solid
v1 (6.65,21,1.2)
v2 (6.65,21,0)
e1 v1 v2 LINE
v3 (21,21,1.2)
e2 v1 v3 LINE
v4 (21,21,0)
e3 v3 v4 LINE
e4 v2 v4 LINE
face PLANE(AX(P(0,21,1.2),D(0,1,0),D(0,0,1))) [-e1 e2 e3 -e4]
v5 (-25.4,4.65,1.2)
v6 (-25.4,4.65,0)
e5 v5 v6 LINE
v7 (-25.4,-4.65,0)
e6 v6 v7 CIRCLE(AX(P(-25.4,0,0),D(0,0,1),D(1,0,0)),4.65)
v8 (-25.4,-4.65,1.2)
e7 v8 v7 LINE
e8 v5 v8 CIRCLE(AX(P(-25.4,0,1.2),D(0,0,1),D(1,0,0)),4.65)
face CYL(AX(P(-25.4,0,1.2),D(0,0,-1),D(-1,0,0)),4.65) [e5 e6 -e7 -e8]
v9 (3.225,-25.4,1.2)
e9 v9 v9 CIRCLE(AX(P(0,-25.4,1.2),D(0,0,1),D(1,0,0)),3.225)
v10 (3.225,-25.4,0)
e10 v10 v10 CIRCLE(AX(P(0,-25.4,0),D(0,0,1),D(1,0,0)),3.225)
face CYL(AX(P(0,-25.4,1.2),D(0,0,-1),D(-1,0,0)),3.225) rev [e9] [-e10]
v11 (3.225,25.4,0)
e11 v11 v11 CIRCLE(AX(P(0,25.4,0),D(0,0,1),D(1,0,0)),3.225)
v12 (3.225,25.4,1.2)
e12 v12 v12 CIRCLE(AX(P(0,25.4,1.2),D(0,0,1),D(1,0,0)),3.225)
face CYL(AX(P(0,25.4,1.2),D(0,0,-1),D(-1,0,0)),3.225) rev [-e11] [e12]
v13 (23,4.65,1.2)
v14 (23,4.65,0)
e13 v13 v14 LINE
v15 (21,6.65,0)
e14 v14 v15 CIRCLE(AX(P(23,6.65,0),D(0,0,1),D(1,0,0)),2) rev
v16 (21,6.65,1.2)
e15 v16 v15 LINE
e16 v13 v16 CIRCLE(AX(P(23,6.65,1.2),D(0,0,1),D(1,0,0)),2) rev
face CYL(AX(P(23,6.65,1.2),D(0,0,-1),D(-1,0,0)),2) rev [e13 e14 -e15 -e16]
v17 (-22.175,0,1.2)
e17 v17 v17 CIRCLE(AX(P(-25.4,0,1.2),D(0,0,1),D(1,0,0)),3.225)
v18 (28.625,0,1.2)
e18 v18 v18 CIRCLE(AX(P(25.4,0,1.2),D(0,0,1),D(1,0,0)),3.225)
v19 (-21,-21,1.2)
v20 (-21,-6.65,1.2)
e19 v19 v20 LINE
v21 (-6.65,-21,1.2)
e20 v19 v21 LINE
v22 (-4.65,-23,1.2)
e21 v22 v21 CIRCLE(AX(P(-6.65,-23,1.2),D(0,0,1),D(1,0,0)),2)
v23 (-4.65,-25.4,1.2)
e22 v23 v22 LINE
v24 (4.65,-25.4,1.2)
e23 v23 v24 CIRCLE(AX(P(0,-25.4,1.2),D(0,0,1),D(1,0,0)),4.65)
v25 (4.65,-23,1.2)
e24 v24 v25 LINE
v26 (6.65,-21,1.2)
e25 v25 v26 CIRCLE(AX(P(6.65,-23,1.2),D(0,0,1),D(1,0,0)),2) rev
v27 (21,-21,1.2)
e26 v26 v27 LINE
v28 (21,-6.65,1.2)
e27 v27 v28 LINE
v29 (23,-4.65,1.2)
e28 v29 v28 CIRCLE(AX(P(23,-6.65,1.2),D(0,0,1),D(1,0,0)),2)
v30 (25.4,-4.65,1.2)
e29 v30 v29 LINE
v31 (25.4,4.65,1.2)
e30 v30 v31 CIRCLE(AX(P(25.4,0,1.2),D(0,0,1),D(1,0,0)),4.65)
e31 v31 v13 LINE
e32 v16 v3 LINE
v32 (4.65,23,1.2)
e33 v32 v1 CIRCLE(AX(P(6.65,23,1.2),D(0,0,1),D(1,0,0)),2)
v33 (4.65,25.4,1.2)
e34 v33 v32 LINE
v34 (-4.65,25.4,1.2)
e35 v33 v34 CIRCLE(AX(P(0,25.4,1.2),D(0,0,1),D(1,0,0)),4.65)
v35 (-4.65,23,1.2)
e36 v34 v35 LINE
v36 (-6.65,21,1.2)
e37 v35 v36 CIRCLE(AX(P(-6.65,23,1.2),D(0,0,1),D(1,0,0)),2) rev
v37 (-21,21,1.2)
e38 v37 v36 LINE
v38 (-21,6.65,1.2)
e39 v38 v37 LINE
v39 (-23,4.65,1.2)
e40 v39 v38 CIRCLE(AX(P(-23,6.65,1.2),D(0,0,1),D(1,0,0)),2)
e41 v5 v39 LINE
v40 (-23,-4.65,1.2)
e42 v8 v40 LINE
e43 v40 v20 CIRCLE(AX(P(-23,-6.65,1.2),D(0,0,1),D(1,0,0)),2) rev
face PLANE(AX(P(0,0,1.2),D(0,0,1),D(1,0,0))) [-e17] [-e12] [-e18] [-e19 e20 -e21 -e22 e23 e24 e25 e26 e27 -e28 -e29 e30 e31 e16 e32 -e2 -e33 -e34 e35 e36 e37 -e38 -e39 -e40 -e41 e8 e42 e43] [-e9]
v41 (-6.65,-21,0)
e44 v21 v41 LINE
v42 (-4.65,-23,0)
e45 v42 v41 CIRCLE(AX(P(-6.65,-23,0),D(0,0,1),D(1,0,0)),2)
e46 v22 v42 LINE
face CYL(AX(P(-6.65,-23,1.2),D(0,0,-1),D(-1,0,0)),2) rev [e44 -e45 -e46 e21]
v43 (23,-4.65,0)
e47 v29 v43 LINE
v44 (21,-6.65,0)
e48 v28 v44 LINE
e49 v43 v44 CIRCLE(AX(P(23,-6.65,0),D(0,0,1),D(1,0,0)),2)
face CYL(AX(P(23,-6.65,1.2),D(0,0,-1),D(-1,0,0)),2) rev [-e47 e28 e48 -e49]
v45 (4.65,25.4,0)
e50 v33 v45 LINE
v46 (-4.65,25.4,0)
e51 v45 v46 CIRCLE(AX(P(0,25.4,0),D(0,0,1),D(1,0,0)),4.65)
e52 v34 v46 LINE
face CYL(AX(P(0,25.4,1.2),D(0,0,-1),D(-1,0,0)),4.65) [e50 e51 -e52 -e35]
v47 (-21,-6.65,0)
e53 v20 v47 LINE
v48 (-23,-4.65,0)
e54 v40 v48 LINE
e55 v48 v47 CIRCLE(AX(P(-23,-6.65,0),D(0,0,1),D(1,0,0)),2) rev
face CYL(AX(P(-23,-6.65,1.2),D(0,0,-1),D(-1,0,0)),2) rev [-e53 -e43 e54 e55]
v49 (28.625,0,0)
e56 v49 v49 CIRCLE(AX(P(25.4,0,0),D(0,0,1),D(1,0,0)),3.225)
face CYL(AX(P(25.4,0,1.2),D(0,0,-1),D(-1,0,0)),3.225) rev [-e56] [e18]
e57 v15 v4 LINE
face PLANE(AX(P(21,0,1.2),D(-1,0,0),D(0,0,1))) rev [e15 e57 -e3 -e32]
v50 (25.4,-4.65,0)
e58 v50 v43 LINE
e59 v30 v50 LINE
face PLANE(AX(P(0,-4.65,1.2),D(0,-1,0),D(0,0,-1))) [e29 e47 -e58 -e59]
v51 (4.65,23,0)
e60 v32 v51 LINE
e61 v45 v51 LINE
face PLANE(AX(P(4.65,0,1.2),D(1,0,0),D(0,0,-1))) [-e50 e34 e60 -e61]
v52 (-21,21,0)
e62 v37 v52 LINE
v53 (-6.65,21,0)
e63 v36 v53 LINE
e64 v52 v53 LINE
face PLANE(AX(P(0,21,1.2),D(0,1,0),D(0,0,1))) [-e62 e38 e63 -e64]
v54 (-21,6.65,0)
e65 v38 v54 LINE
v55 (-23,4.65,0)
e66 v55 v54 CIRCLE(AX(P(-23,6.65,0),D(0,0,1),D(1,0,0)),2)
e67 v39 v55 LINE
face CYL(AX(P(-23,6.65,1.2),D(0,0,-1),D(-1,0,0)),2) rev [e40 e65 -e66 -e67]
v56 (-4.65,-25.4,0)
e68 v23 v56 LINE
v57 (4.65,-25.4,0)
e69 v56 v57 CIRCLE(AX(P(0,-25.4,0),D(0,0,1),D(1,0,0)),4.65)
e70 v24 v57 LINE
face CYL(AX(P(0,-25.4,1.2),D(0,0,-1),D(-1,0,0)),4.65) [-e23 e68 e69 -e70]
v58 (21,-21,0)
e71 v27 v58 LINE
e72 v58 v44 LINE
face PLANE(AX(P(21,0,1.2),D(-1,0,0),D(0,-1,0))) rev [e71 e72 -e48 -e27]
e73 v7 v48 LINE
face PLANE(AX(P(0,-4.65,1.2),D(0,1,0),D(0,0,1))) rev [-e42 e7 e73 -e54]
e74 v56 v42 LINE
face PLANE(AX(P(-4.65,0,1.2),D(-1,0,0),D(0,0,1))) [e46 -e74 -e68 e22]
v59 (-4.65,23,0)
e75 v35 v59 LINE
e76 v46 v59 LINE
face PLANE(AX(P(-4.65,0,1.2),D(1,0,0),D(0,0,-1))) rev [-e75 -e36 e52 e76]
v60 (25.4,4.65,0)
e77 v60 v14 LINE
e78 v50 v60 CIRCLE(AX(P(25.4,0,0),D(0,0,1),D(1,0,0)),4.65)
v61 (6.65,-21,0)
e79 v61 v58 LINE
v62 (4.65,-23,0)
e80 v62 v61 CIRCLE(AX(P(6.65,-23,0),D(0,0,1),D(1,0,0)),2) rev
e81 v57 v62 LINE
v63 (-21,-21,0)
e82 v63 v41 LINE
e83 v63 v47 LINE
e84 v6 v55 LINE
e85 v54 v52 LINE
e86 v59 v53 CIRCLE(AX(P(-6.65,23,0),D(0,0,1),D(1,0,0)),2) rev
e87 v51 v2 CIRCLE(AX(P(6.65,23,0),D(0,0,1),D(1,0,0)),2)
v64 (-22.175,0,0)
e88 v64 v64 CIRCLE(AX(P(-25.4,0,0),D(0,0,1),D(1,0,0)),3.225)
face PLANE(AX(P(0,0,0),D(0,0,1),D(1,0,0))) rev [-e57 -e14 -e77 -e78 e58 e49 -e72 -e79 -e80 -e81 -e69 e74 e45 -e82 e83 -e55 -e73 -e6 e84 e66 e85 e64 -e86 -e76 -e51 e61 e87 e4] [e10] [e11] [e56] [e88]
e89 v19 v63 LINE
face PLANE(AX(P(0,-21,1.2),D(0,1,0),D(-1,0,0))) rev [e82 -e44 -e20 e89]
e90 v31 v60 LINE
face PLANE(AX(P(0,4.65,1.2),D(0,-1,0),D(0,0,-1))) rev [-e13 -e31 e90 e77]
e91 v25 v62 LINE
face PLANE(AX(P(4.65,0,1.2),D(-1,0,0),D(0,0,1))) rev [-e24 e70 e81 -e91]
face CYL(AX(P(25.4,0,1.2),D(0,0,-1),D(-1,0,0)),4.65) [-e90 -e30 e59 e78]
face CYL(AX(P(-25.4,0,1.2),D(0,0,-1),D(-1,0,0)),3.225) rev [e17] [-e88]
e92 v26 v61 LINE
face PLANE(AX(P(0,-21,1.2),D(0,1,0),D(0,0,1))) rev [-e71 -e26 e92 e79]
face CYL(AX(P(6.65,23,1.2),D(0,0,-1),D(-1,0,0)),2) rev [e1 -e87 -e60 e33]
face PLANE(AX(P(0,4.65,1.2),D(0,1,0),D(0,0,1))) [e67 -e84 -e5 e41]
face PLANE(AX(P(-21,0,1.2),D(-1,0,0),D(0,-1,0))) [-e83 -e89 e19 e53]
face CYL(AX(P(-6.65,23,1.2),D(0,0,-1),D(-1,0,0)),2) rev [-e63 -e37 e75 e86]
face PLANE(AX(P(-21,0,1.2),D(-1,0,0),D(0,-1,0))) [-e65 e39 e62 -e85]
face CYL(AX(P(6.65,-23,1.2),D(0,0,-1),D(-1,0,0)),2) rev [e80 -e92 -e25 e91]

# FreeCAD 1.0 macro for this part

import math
import FreeCAD as App
import Part
import Sketcher
from FreeCAD import Vector
Q = App.Units.Quantity

doc = App.newDocument("Part")
body = doc.addObject("PartDesign::Body", "Body")

# Sketch on XY plane
sketch1 = body.newObject("Sketcher::SketchObject", "Sketch")
sketch1.AttachmentSupport = (doc.getObject("XY_Plane"), [""])
sketch1.MapMode = "FlatFace"
sketch1.addGeometry([
    Part.ArcOfCircle(Part.Circle(Vector(0, 25.4, 0), Vector(0, 0, 1), 4.7), math.radians(0), math.radians(180)),  # 0
    Part.LineSegment(Vector(-4.7, 25.4, 0), Vector(-4.7, 23, 0)),  # 1
    Part.ArcOfCircle(Part.Circle(Vector(-6.7, 23, 0), Vector(0, 0, 1), 2), math.radians(-90), math.radians(0)),  # 2
    Part.LineSegment(Vector(-6.7, 21, 0), Vector(-21, 21, 0)),  # 3
    Part.LineSegment(Vector(-21, 21, 0), Vector(-21, 6.7, 0)),  # 4
    Part.ArcOfCircle(Part.Circle(Vector(-23, 6.7, 0), Vector(0, 0, 1), 2), math.radians(-90), math.radians(0)),  # 5
    Part.LineSegment(Vector(-23, 4.7, 0), Vector(-25.4, 4.7, 0)),  # 6
    Part.ArcOfCircle(Part.Circle(Vector(-25.4, 0, 0), Vector(0, 0, 1), 4.7), math.radians(90), math.radians(270)),  # 7
    Part.LineSegment(Vector(-25.4, -4.7, 0), Vector(-23, -4.7, 0)),  # 8
    Part.ArcOfCircle(Part.Circle(Vector(-23, -6.7, 0), Vector(0, 0, 1), 2), math.radians(0), math.radians(90)),  # 9
    Part.LineSegment(Vector(-21, -6.7, 0), Vector(-21, -21, 0)),  # 10
    Part.LineSegment(Vector(-21, -21, 0), Vector(-6.7, -21, 0)),  # 11
    Part.ArcOfCircle(Part.Circle(Vector(-6.7, -23, 0), Vector(0, 0, 1), 2), math.radians(0), math.radians(90)),  # 12
    Part.LineSegment(Vector(-4.7, -23, 0), Vector(-4.7, -25.4, 0)),  # 13
    Part.ArcOfCircle(Part.Circle(Vector(0, -25.4, 0), Vector(0, 0, 1), 4.7), math.radians(180), math.radians(360)),  # 14
    Part.LineSegment(Vector(4.7, -25.4, 0), Vector(4.7, -23, 0)),  # 15
    Part.ArcOfCircle(Part.Circle(Vector(6.7, -23, 0), Vector(0, 0, 1), 2), math.radians(90), math.radians(180)),  # 16
    Part.LineSegment(Vector(6.7, -21, 0), Vector(21, -21, 0)),  # 17
    Part.LineSegment(Vector(21, -21, 0), Vector(21, -6.7, 0)),  # 18
    Part.ArcOfCircle(Part.Circle(Vector(23, -6.7, 0), Vector(0, 0, 1), 2), math.radians(90), math.radians(180)),  # 19
    Part.LineSegment(Vector(23, -4.7, 0), Vector(25.4, -4.7, 0)),  # 20
    Part.ArcOfCircle(Part.Circle(Vector(25.4, 0, 0), Vector(0, 0, 1), 4.7), math.radians(-90), math.radians(90)),  # 21
    Part.LineSegment(Vector(25.4, 4.7, 0), Vector(23, 4.7, 0)),  # 22
    Part.ArcOfCircle(Part.Circle(Vector(23, 6.7, 0), Vector(0, 0, 1), 2), math.radians(-180), math.radians(-90)),  # 23
    Part.LineSegment(Vector(21, 6.7, 0), Vector(21, 21, 0)),  # 24
    Part.LineSegment(Vector(21, 21, 0), Vector(6.7, 21, 0)),  # 25
    Part.ArcOfCircle(Part.Circle(Vector(6.7, 23, 0), Vector(0, 0, 1), 2), math.radians(-180), math.radians(-90)),  # 26
    Part.LineSegment(Vector(4.7, 23, 0), Vector(4.7, 25.4, 0)),  # 27
    Part.Circle(Vector(0, -25.4, 0), Vector(0, 0, 1), 3.2),  # 28
    Part.Circle(Vector(-25.4, 0, 0), Vector(0, 0, 1), 3.2),  # 29
    Part.Circle(Vector(25.4, 0, 0), Vector(0, 0, 1), 3.2),  # 30
    Part.Circle(Vector(0, 25.4, 0), Vector(0, 0, 1), 3.2),  # 31
], False)
sketch1.addConstraint([
    Sketcher.Constraint("Tangent", 0, 2, 1, 1),
    Sketcher.Constraint("Tangent", 1, 2, 2, 2),
    Sketcher.Constraint("Tangent", 2, 1, 3, 1),
    Sketcher.Constraint("Coincident", 3, 2, 4, 1),
    Sketcher.Constraint("Tangent", 4, 2, 5, 2),
    Sketcher.Constraint("Tangent", 5, 1, 6, 1),
    Sketcher.Constraint("Tangent", 6, 2, 7, 1),
    Sketcher.Constraint("Tangent", 7, 2, 8, 1),
    Sketcher.Constraint("Tangent", 8, 2, 9, 2),
    Sketcher.Constraint("Tangent", 9, 1, 10, 1),
    Sketcher.Constraint("Coincident", 10, 2, 11, 1),
    Sketcher.Constraint("Tangent", 11, 2, 12, 2),
    Sketcher.Constraint("Tangent", 12, 1, 13, 1),
    Sketcher.Constraint("Tangent", 13, 2, 14, 1),
    Sketcher.Constraint("Tangent", 14, 2, 15, 1),
    Sketcher.Constraint("Tangent", 15, 2, 16, 2),
    Sketcher.Constraint("Tangent", 16, 1, 17, 1),
    Sketcher.Constraint("Coincident", 17, 2, 18, 1),
    Sketcher.Constraint("Tangent", 18, 2, 19, 2),
    Sketcher.Constraint("Tangent", 19, 1, 20, 1),
    Sketcher.Constraint("Tangent", 20, 2, 21, 1),
    Sketcher.Constraint("Tangent", 21, 2, 22, 1),
    Sketcher.Constraint("Tangent", 22, 2, 23, 2),
    Sketcher.Constraint("Tangent", 23, 1, 24, 1),
    Sketcher.Constraint("Coincident", 24, 2, 25, 1),
    Sketcher.Constraint("Tangent", 25, 2, 26, 2),
    Sketcher.Constraint("Tangent", 26, 1, 27, 1),
    Sketcher.Constraint("Tangent", 27, 2, 0, 1),
    Sketcher.Constraint("Vertical", 1),
    Sketcher.Constraint("Horizontal", 3),
    Sketcher.Constraint("Vertical", 4),
    Sketcher.Constraint("Horizontal", 6),
    Sketcher.Constraint("Horizontal", 8),
    Sketcher.Constraint("Vertical", 10),
    Sketcher.Constraint("Horizontal", 11),
    Sketcher.Constraint("Vertical", 13),
    Sketcher.Constraint("Vertical", 15),
    Sketcher.Constraint("Horizontal", 17),
    Sketcher.Constraint("Vertical", 18),
    Sketcher.Constraint("Horizontal", 20),
    Sketcher.Constraint("Horizontal", 22),
    Sketcher.Constraint("Vertical", 24),
    Sketcher.Constraint("Horizontal", 25),
    Sketcher.Constraint("Vertical", 27),
    Sketcher.Constraint("Coincident", 28, 3, 14, 3),
    Sketcher.Constraint("Coincident", 29, 3, 7, 3),
    Sketcher.Constraint("Coincident", 30, 3, 21, 3),
    Sketcher.Constraint("Coincident", 31, 3, 0, 3),
    Sketcher.Constraint("Equal", 2, 5),
    Sketcher.Constraint("Equal", 0, 7),
    Sketcher.Constraint("Equal", 5, 9),
    Sketcher.Constraint("Equal", 9, 12),
    Sketcher.Constraint("Equal", 7, 14),
    Sketcher.Constraint("Equal", 12, 16),
    Sketcher.Constraint("Equal", 16, 19),
    Sketcher.Constraint("Equal", 14, 21),
    Sketcher.Constraint("Equal", 19, 23),
    Sketcher.Constraint("Equal", 23, 26),
    Sketcher.Constraint("Equal", 28, 29),
    Sketcher.Constraint("Equal", 29, 30),
    Sketcher.Constraint("Equal", 30, 31),
    Sketcher.Constraint("Symmetric", 0, 3, 14, 3, -1, 1),
    Sketcher.Constraint("Symmetric", 5, 3, 19, 3, -1, 1),
    Sketcher.Constraint("Symmetric", 10, 2, 24, 2, -1, 1),
    Sketcher.Constraint("Symmetric", 12, 3, 16, 3, -2),
    Sketcher.Constraint("Symmetric", 9, 3, 19, 3, -2),
    Sketcher.Constraint("Horizontal", 2, 3, 26, 3),
    Sketcher.Constraint("Equal", 8, 20),
    Sketcher.Constraint("Equal", 22, 1),
    Sketcher.Constraint("Equal", 25, 4),
    Sketcher.Constraint("Radius", 2, Q("2 mm")),
    Sketcher.Constraint("Diameter", 28, Q("6.45 mm")),
    Sketcher.Constraint("Radius", 0, Q("4.65 mm")),
    Sketcher.Constraint("DistanceX", 6, 2, 6, 1, Q("2.4 mm")),
    Sketcher.Constraint("DistanceY", -1, 1, 2, 3, Q("23 mm")),
])
pad1 = body.newObject("PartDesign::Pad", "Pad")
pad1.Profile = sketch1
pad1.Length = 1.2

doc.recompute()
